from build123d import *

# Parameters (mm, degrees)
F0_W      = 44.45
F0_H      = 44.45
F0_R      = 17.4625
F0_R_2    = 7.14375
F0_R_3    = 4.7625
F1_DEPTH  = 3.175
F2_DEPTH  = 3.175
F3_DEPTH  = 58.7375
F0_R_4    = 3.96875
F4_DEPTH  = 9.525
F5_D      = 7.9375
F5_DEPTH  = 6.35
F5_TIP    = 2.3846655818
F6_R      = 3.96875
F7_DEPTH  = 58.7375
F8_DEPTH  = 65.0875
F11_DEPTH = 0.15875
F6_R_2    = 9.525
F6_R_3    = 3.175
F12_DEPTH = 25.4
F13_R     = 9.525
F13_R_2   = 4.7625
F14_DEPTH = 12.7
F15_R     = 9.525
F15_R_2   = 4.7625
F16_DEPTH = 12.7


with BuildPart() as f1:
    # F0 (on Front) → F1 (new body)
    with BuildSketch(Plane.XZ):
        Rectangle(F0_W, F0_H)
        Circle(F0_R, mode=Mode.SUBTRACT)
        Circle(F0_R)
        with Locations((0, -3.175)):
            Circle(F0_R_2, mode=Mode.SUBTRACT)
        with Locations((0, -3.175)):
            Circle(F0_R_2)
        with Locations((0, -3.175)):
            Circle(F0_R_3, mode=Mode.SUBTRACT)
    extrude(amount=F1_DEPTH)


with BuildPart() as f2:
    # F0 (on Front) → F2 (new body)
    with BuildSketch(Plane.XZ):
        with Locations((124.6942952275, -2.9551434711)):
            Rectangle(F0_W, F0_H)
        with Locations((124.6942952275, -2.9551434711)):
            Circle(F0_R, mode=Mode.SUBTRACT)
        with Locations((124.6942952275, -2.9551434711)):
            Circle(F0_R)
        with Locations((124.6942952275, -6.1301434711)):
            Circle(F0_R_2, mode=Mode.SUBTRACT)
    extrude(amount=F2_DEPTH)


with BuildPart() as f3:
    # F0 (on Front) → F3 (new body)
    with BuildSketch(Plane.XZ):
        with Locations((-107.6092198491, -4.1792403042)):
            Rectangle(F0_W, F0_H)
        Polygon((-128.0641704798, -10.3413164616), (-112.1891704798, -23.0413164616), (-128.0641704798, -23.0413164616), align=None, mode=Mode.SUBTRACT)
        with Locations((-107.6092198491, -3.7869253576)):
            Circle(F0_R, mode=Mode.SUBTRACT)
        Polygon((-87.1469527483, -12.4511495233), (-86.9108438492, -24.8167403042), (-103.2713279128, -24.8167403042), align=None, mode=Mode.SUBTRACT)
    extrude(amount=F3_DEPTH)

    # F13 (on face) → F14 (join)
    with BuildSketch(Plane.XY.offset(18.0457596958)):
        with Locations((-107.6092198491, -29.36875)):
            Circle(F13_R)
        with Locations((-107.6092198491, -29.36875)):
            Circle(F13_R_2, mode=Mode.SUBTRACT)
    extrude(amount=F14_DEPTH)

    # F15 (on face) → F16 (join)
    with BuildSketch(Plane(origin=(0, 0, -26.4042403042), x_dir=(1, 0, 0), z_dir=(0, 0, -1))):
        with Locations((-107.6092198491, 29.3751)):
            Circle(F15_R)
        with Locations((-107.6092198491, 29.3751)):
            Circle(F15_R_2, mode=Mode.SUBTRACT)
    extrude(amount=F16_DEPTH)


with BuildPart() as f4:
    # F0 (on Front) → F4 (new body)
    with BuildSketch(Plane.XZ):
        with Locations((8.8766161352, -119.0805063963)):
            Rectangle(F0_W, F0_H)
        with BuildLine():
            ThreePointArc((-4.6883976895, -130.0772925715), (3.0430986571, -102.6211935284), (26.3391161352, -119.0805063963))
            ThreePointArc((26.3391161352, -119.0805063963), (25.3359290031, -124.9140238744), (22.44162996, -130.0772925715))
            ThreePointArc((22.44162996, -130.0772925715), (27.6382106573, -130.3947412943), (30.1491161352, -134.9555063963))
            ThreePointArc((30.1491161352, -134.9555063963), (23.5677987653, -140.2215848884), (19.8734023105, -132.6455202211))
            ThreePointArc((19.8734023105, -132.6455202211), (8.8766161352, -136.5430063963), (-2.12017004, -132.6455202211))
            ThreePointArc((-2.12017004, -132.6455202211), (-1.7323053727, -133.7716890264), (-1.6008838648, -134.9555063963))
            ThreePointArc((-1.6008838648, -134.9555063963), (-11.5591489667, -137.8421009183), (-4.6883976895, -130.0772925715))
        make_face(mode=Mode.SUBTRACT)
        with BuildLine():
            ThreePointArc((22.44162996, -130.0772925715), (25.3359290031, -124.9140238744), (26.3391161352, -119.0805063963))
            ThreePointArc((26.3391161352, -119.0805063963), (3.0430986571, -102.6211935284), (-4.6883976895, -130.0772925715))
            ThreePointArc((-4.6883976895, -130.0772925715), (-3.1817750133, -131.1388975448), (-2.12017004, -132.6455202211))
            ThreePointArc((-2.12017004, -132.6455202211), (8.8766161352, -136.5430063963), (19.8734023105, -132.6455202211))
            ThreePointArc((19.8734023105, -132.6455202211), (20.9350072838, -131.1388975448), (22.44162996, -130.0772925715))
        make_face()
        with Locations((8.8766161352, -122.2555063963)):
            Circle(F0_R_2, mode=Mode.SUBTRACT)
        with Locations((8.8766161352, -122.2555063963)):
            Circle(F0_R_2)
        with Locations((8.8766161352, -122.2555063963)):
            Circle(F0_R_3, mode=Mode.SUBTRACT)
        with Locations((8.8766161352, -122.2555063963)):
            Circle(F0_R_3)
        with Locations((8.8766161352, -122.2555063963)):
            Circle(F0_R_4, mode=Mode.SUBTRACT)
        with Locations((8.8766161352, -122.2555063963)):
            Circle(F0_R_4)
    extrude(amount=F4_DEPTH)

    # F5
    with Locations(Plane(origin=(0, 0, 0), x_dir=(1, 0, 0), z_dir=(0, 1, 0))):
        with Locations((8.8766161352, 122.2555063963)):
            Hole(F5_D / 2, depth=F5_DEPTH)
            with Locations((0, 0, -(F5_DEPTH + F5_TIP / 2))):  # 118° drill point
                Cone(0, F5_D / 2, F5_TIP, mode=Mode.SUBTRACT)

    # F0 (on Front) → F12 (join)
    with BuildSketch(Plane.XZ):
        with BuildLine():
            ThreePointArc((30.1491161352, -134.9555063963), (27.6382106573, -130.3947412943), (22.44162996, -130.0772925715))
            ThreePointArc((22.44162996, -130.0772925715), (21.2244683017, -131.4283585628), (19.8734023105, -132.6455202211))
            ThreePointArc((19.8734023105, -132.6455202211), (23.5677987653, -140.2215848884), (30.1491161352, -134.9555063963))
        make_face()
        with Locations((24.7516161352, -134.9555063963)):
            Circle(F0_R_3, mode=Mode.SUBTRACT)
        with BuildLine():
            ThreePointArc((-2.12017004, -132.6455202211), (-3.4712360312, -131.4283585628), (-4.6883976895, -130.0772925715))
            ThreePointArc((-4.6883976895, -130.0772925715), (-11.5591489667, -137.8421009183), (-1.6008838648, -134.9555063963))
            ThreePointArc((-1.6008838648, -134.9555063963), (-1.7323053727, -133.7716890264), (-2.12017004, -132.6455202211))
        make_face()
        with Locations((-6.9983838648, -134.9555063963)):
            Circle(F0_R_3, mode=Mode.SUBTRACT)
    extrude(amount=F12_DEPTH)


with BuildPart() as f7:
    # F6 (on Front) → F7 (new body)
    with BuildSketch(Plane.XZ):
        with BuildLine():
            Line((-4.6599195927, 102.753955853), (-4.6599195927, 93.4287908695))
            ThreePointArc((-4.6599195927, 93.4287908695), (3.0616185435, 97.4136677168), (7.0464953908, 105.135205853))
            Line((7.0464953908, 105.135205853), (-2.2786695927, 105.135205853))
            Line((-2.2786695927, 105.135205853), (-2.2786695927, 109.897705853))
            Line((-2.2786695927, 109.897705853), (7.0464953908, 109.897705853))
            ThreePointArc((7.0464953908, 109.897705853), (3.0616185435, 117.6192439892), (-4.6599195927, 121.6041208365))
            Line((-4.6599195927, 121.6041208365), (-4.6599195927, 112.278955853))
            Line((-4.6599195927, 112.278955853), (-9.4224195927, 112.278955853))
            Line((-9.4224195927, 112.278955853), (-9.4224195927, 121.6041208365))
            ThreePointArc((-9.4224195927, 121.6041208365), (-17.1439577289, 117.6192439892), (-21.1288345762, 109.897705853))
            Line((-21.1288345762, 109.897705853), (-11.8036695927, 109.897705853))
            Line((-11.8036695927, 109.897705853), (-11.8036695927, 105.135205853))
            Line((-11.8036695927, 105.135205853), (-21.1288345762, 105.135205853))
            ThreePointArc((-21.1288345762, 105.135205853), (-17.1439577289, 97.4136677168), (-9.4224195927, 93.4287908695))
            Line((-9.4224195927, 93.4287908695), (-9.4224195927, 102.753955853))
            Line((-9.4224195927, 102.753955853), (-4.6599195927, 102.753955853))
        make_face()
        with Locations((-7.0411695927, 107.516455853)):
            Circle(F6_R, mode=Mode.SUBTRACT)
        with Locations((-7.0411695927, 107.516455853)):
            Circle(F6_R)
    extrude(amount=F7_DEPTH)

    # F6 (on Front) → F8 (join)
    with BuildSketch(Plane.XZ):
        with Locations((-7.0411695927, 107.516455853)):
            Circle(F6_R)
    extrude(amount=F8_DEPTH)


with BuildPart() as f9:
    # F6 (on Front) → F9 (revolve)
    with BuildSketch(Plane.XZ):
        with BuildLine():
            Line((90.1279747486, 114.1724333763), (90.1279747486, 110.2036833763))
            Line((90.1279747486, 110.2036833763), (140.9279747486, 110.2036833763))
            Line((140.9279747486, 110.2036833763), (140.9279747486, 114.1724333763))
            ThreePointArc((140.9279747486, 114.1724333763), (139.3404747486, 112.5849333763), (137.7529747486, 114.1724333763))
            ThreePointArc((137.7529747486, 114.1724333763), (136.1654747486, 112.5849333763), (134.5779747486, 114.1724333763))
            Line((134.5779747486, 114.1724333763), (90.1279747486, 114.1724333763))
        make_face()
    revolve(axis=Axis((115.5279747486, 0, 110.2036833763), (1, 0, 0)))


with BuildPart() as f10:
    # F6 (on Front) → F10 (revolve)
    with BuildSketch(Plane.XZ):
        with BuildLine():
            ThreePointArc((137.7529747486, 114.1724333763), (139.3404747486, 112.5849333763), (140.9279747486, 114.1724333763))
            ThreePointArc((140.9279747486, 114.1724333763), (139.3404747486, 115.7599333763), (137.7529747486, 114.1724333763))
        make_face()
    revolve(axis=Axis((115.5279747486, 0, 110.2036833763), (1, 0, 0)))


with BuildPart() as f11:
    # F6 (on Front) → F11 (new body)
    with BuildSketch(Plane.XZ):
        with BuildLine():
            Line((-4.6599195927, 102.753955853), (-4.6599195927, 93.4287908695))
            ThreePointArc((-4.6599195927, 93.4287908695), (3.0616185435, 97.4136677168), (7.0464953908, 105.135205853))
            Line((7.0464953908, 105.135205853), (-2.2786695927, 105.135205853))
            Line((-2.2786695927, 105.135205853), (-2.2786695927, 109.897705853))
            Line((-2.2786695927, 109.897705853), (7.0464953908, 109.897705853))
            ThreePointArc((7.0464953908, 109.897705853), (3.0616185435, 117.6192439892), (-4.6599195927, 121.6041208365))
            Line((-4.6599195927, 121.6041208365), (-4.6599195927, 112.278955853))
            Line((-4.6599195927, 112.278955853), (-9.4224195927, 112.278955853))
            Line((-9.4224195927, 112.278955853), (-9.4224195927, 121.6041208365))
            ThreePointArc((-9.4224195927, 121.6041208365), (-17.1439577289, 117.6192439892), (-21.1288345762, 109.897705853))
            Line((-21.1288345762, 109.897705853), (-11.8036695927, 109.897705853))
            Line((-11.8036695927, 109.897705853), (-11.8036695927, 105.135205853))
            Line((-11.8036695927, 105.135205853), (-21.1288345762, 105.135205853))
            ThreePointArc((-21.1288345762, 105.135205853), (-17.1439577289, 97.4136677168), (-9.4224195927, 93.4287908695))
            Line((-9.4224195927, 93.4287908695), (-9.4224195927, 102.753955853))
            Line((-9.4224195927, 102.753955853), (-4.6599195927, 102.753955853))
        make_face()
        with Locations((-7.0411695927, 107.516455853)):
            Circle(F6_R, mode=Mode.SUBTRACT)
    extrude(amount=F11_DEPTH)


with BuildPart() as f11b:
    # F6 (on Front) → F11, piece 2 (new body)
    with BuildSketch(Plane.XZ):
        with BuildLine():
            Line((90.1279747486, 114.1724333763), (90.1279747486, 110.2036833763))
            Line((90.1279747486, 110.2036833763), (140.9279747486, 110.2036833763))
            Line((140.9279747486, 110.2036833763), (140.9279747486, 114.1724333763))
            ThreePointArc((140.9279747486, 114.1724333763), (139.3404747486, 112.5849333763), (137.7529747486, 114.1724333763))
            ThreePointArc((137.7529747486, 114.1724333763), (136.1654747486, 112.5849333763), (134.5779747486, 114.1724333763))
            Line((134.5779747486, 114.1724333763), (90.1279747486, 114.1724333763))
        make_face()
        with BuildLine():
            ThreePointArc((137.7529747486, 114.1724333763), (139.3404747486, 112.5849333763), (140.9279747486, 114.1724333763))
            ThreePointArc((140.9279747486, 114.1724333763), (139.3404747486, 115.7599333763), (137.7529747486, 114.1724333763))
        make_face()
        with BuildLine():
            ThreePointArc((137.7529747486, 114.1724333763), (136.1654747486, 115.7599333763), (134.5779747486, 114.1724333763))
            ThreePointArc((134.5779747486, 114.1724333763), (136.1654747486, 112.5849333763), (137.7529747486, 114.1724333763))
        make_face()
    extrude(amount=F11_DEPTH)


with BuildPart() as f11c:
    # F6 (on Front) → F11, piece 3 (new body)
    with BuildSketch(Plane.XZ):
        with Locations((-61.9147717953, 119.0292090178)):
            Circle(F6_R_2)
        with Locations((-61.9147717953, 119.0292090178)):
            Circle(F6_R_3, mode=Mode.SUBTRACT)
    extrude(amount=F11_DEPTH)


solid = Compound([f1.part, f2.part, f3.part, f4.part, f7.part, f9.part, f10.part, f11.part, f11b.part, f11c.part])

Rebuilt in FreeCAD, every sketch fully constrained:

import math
import FreeCAD as App
import Part
import Sketcher
Q = App.Units.Quantity


def add_polygon(sketch, points):
    """Adds a closed chain of lines whose ends are joined by coincident constraints."""
    first, n = sketch.GeometryCount, len(points)
    for a, b in zip(points, points[1:] + points[:1]):
        sketch.addGeometry(Part.LineSegment(App.Vector(*a, 0), App.Vector(*b, 0)), False)
    for i in range(n):
        sketch.addConstraint(Sketcher.Constraint("Coincident", first + i, 2, first + (i + 1) % n, 1))

doc = App.newDocument("Part")
body = doc.addObject("PartDesign::Body", "Body")

sketch1 = body.newObject("Sketcher::SketchObject", "Sketch")
sketch1.AttachmentSupport = (doc.getObject("XZ_Plane"), [""])
sketch1.MapMode = "FlatFace"
add_polygon(sketch1, [(-22.2, 22.2), (-22.2, -22.2), (22.2, -22.2), (22.2, 22.2)])
sketch1.addGeometry(Part.Circle(App.Vector(0, -3.2, 0), App.Vector(0, 0, 1), 4.8), False)
sketch1.addConstraint([
    Sketcher.Constraint("Vertical", 0),
    Sketcher.Constraint("Horizontal", 1),
    Sketcher.Constraint("Vertical", 2),
    Sketcher.Constraint("Horizontal", 3),
    Sketcher.Constraint("Symmetric", 0, 2, 2, 2, -1, 1),
    Sketcher.Constraint("PointOnObject", 4, 3, -2),
    Sketcher.Constraint("Equal", 3, 0),
    Sketcher.Constraint("Diameter", 4, Q("0.375 in")),
    Sketcher.Constraint("DistanceY", 4, 3, 2, 2, Q("1 in")),
    Sketcher.Constraint("DistanceX", 1, 1, 1, 2, Q("1.75 in")),
])
pad1 = body.newObject("PartDesign::Pad", "Pad")
pad1.Profile = sketch1
pad1.Length = Q("0.125 in")
body2 = doc.addObject("PartDesign::Body", "Body001")

sketch2 = body2.newObject("Sketcher::SketchObject", "Sketch001")
sketch2.AttachmentSupport = (doc.getObject("XZ_Plane001"), [""])
sketch2.MapMode = "FlatFace"
add_polygon(sketch2, [(102, 19), (102, -25), (147, -25), (147, 19)])
sketch2.addGeometry(Part.Circle(App.Vector(125, -6, 0), App.Vector(0, 0, 1), 7), False)
sketch2.addConstraint([
    Sketcher.Constraint("Vertical", 0),
    Sketcher.Constraint("Horizontal", 1),
    Sketcher.Constraint("Vertical", 2),
    Sketcher.Constraint("Horizontal", 3),
    Sketcher.Constraint("Equal", 3, 0),
    Sketcher.Constraint("Diameter", 4, Q("0.5625 in")),
    Sketcher.Constraint("DistanceY", 4, 3, 2, 2, Q("1 in")),
    Sketcher.Constraint("DistanceX", 1, 1, 1, 2, Q("1.75 in")),
    Sketcher.Constraint("DistanceX", 0, 2, 4, 3, Q("0.875 in")),
    Sketcher.Constraint("DistanceX", -1, 1, 4, 3, Q("124.694295 mm")),
    Sketcher.Constraint("DistanceY", 4, 3, -1, 1, Q("6.130143 mm")),
])
pad2 = body2.newObject("PartDesign::Pad", "Pad001")
pad2.Profile = sketch2
pad2.Length = Q("0.125 in")
body3 = doc.addObject("PartDesign::Body", "Body002")

sketch3 = body3.newObject("Sketcher::SketchObject", "Sketch002")
sketch3.AttachmentSupport = (doc.getObject("XZ_Plane002"), [""])
sketch3.MapMode = "FlatFace"
add_polygon(sketch3, [(-130, 18), (-130, -26), (-85, -26), (-85, 18)])
add_polygon(sketch3, [(-128, -23), (-128, -10), (-112, -23)])
add_polygon(sketch3, [(-103, -25), (-87, -12), (-87, -25)])
sketch3.addGeometry(Part.Circle(App.Vector(-108, -4, 0), App.Vector(0, 0, 1), 17), False)
sketch3.addConstraint([
    Sketcher.Constraint("Vertical", 0),
    Sketcher.Constraint("Horizontal", 1),
    Sketcher.Constraint("Vertical", 2),
    Sketcher.Constraint("Horizontal", 3),
    Sketcher.Constraint("Vertical", 4),
    Sketcher.Constraint("Horizontal", 6),
    Sketcher.Constraint("Horizontal", 9),
    Sketcher.Constraint("Equal", 3, 0),
    Sketcher.Constraint("Diameter", 10, Q("1.375 in")),
    Sketcher.Constraint("DistanceY", 4, 1, 4, 2, Q("0.5 in")),
    Sketcher.Constraint("DistanceX", 1, 1, 1, 2, Q("1.75 in")),
    Sketcher.Constraint("DistanceX", 6, 2, 6, 1, Q("0.625 in")),
    Sketcher.Constraint("DistanceX", 0, 2, 10, 3, Q("0.875 in")),
    Sketcher.Constraint("DistanceY", 1, 2, 8, 2, Q("0.0625 in")),
    Sketcher.Constraint("DistanceX", 9, 2, 9, 1, Q("16.360484 mm")),
    Sketcher.Constraint("DistanceX", 10, 3, -1, 1, Q("107.60922 mm")),
    Sketcher.Constraint("DistanceY", 0, 2, -1, 1, Q("26.40424 mm")),
    Sketcher.Constraint("DistanceX", 4, 2, -1, 1, Q("128.06417 mm")),
    Sketcher.Constraint("DistanceY", 7, 2, -1, 1, Q("12.45115 mm")),
    Sketcher.Constraint("DistanceY", 4, 2, 10, 3, Q("6.554391 mm")),
    Sketcher.Constraint("DistanceX", 7, 2, 8, 2, Q("0.236109 mm")),
    Sketcher.Constraint("DistanceX", 9, 2, 1, 2, Q("17.887108 mm")),
    Sketcher.Constraint("DistanceY", 10, 3, -1, 1, Q("3.786925 mm")),
])
pad3 = body3.newObject("PartDesign::Pad", "Pad002")
pad3.Profile = sketch3
pad3.Length = Q("2.3125 in")

sketch4 = body3.newObject("Sketcher::SketchObject", "Sketch003")
sketch4.AttachmentSupport = (doc.getObject("XY_Plane002"), [""])
sketch4.MapMode = "FlatFace"
sketch4.AttachmentOffset = App.Placement(App.Vector(0, 0, 18.04576), App.Rotation())
sketch4.addGeometry([
    Part.Circle(App.Vector(-107.6, -29.4, 0), App.Vector(0, 0, 1), 9.5),
    Part.Circle(App.Vector(-107.6, -29.4, 0), App.Vector(0, 0, 1), 4.8),
], False)
sketch4.addConstraint([
    Sketcher.Constraint("Coincident", 1, 3, 0, 3),
    Sketcher.Constraint("Diameter", 0, Q("0.75 in")),
    Sketcher.Constraint("Diameter", 1, Q("0.375 in")),
    Sketcher.Constraint("DistanceY", 0, 3, -1, 1, Q("1.15625 in")),
    Sketcher.Constraint("DistanceX", 0, 3, -1, 1, Q("107.60922 mm")),
])
pad4 = body3.newObject("PartDesign::Pad", "Pad003")
pad4.Profile = sketch4
pad4.Length = Q("0.5 in")

sketch5 = body3.newObject("Sketcher::SketchObject", "Sketch004")
sketch5.AttachmentSupport = (doc.getObject("XY_Plane002"), [""])
sketch5.MapMode = "FlatFace"
sketch5.AttachmentOffset = App.Placement(App.Vector(0, 0, -26.40424), App.Rotation())
sketch5.addGeometry([
    Part.Circle(App.Vector(-107.6, -29.4, 0), App.Vector(0, 0, 1), 9.5),
    Part.Circle(App.Vector(-107.6, -29.4, 0), App.Vector(0, 0, 1), 4.8),
], False)
sketch5.addConstraint([
    Sketcher.Constraint("Coincident", 1, 3, 0, 3),
    Sketcher.Constraint("Diameter", 0, Q("0.75 in")),
    Sketcher.Constraint("Diameter", 1, Q("0.375 in")),
    Sketcher.Constraint("DistanceY", 0, 3, -1, 1, Q("1.1565 in")),
    Sketcher.Constraint("DistanceX", 0, 3, -1, 1, Q("107.60922 mm")),
])
pad5 = body3.newObject("PartDesign::Pad", "Pad004")
pad5.Profile = sketch5
pad5.Length = Q("0.5 in")
pad5.Reversed = True
body4 = doc.addObject("PartDesign::Body", "Body003")

sketch6 = body4.newObject("Sketcher::SketchObject", "Sketch005")
sketch6.AttachmentSupport = (doc.getObject("XZ_Plane003"), [""])
sketch6.MapMode = "FlatFace"
add_polygon(sketch6, [(-13.3, -96.9), (-13.3, -141.3), (31.1, -141.3), (31.1, -96.9)])
sketch6.addGeometry(Part.ArcOfCircle(Part.Circle(App.Vector(-7, -135, 0), App.Vector(0, 0, 1), 5.4), math.radians(65), math.radians(360)), False)
sketch6.addGeometry(Part.ArcOfCircle(Part.Circle(App.Vector(-7, -135, 0), App.Vector(0, 0, 1), 5.4), math.radians(25), math.radians(65)), False)
sketch6.addGeometry(Part.ArcOfCircle(Part.Circle(App.Vector(-7, -135, 0), App.Vector(0, 0, 1), 5.4), math.radians(0), math.radians(25)), False)
sketch6.addGeometry(Part.ArcOfCircle(Part.Circle(App.Vector(24.8, -135, 0), App.Vector(0, 0, 1), 5.4), math.radians(155), math.radians(360)), False)
sketch6.addGeometry(Part.ArcOfCircle(Part.Circle(App.Vector(24.8, -135, 0), App.Vector(0, 0, 1), 5.4), math.radians(115), math.radians(155)), False)
sketch6.addGeometry(Part.ArcOfCircle(Part.Circle(App.Vector(24.8, -135, 0), App.Vector(0, 0, 1), 5.4), math.radians(0), math.radians(115)), False)
sketch6.addConstraint([
    Sketcher.Constraint("Tangent", 4, 1, 5, 2),
    Sketcher.Constraint("Tangent", 5, 1, 6, 2),
    Sketcher.Constraint("Tangent", 6, 1, 4, 2),
    Sketcher.Constraint("Tangent", 7, 1, 8, 2),
    Sketcher.Constraint("Tangent", 8, 1, 9, 2),
    Sketcher.Constraint("Tangent", 9, 1, 7, 2),
    Sketcher.Constraint("Vertical", 0),
    Sketcher.Constraint("Horizontal", 1),
    Sketcher.Constraint("Vertical", 2),
    Sketcher.Constraint("Horizontal", 3),
    Sketcher.Constraint("Equal", 6, 7),
    Sketcher.Constraint("Horizontal", 6, 3, 7, 3),
    Sketcher.Constraint("Horizontal", 9, 3, 6, 1),
    Sketcher.Constraint("Horizontal", 5, 1, 7, 1),
    Sketcher.Constraint("Horizontal", 4, 1, 8, 1),
    Sketcher.Constraint("Horizontal", 6, 1, 9, 1),
    Sketcher.Constraint("Equal", 3, 0),
    Sketcher.Constraint("DistanceX", 1, 1, 1, 2, Q("1.75 in")),
    Sketcher.Constraint("Radius", 4, Q("0.2125 in")),
    Sketcher.Constraint("DistanceX", 0, 2, 7, 3, Q("1.5 in")),
    Sketcher.Constraint("DistanceX", 5, 3, 1, 2, Q("1.5 in")),
    Sketcher.Constraint("DistanceY", 7, 3, 2, 2, Q("1.5 in")),
    Sketcher.Constraint("DistanceX", 5, 1, -1, 1, Q("2.12017 mm")),
    Sketcher.Constraint("DistanceY", 5, 1, -1, 1, Q("132.64552 mm")),
    Sketcher.Constraint("DistanceX", -1, 1, 8, 1, Q("22.44163 mm")),
    Sketcher.Constraint("DistanceX", 4, 3, -1, 1, Q("6.998384 mm")),
])
pad6 = body4.newObject("PartDesign::Pad", "Pad005")
pad6.Profile = sketch6
pad6.Length = Q("0.375 in")

sketch7 = body4.newObject("Sketcher::SketchObject", "Sketch006")
sketch7.AttachmentSupport = (doc.getObject("XZ_Plane003"), [""])
sketch7.MapMode = "FlatFace"
sketch7.addGeometry(Part.Circle(App.Vector(8.9, -122.3, 0), App.Vector(0, 0, 1), 4), False)
sketch7.addConstraint([
    Sketcher.Constraint("Diameter", 0, Q("0.3125 in")),
    Sketcher.Constraint("DistanceX", -1, 1, 0, 3, Q("8.876616 mm")),
    Sketcher.Constraint("DistanceY", 0, 3, -1, 1, Q("122.255506 mm")),
])
doc.recompute()
hole = body4.newObject("PartDesign::Hole", "Hole")
hole.Profile = sketch7
hole.ThreadType = "None"
hole.Diameter = Q("0.3125 in")
hole.DepthType = "Dimension"
hole.Depth = Q("0.25 in")
hole.DrillPoint = "Angled"
hole.DrillPointAngle = 118
hole.Reversed = True

sketch8 = body4.newObject("Sketcher::SketchObject", "Sketch007")
sketch8.AttachmentSupport = (doc.getObject("XZ_Plane003"), [""])
sketch8.MapMode = "FlatFace"
sketch8.addGeometry([
    Part.ArcOfCircle(Part.Circle(App.Vector(24.8, -135, 0), App.Vector(0, 0, 1), 5.4), math.radians(0), math.radians(115)),
    Part.ArcOfCircle(Part.Circle(App.Vector(8.9, -119.1, 0), App.Vector(0, 0, 1), 17.5), math.radians(-50.97), math.radians(-39.03)),
    Part.ArcOfCircle(Part.Circle(App.Vector(24.8, -135, 0), App.Vector(0, 0, 1), 5.4), math.radians(155), math.radians(360)),
    Part.Circle(App.Vector(24.8, -135, 0), App.Vector(0, 0, 1), 4.8),
    Part.ArcOfCircle(Part.Circle(App.Vector(8.9, -119.1, 0), App.Vector(0, 0, 1), 17.5), math.radians(-140.97), math.radians(-129.03)),
    Part.ArcOfCircle(Part.Circle(App.Vector(-7, -135, 0), App.Vector(0, 0, 1), 5.4), math.radians(65), math.radians(360)),
    Part.ArcOfCircle(Part.Circle(App.Vector(-7, -135, 0), App.Vector(0, 0, 1), 5.4), math.radians(0), math.radians(25)),
    Part.Circle(App.Vector(-7, -135, 0), App.Vector(0, 0, 1), 4.8),
], False)
sketch8.addConstraint([
    Sketcher.Constraint("Coincident", 0, 2, 1, 2),
    Sketcher.Constraint("Coincident", 1, 1, 2, 1),
    Sketcher.Constraint("Tangent", 2, 2, 0, 1),
    Sketcher.Constraint("Coincident", 4, 1, 5, 1),
    Sketcher.Constraint("Tangent", 5, 2, 6, 1),
    Sketcher.Constraint("Coincident", 6, 2, 4, 2),
    Sketcher.Constraint("Coincident", 3, 3, 0, 3),
    Sketcher.Constraint("Coincident", 4, 3, 1, 3),
    Sketcher.Constraint("Coincident", 7, 3, 5, 3),
    Sketcher.Constraint("Equal", 0, 2),
    Sketcher.Constraint("Equal", 1, 4),
    Sketcher.Constraint("Equal", 2, 5),
    Sketcher.Constraint("Equal", 5, 6),
    Sketcher.Constraint("Equal", 3, 7),
    Sketcher.Constraint("Horizontal", 3, 3, 5, 3),
    Sketcher.Constraint("Horizontal", 7, 3, 2, 2),
    Sketcher.Constraint("Horizontal", 0, 2, 4, 1),
    Sketcher.Constraint("Horizontal", 2, 2, 5, 2),
    Sketcher.Constraint("Diameter", 3, Q("0.375 in")),
    Sketcher.Constraint("Radius", 1, Q("0.6875 in")),
    Sketcher.Constraint("Radius", 0, Q("0.2125 in")),
    Sketcher.Constraint("DistanceX", 5, 3, 0, 3, Q("1.25 in")),
    Sketcher.Constraint("DistanceY", 0, 3, 1, 3, Q("0.625 in")),
    Sketcher.Constraint("DistanceX", -1, 1, 0, 2, Q("22.44163 mm")),
    Sketcher.Constraint("DistanceY", 1, 1, -1, 1, Q("132.64552 mm")),
])
pad7 = body4.newObject("PartDesign::Pad", "Pad006")
pad7.Profile = sketch8
pad7.Length = Q("1 in")
body5 = doc.addObject("PartDesign::Body", "Body004")

sketch9 = body5.newObject("Sketcher::SketchObject", "Sketch008")
sketch9.AttachmentSupport = (doc.getObject("XZ_Plane004"), [""])
sketch9.MapMode = "FlatFace"
sketch9.addGeometry([
    Part.LineSegment(App.Vector(-4.7, 102.8, 0), App.Vector(-4.7, 93.4, 0)),
    Part.ArcOfCircle(Part.Circle(App.Vector(-7, 107.5, 0), App.Vector(0, 0, 1), 14.3), math.radians(-80), math.radians(-10)),
    Part.LineSegment(App.Vector(7, 105.1, 0), App.Vector(-2.3, 105.1, 0)),
    Part.LineSegment(App.Vector(-2.3, 105.1, 0), App.Vector(-2.3, 109.9, 0)),
    Part.LineSegment(App.Vector(-2.3, 109.9, 0), App.Vector(7, 109.9, 0)),
    Part.ArcOfCircle(Part.Circle(App.Vector(-7, 107.5, 0), App.Vector(0, 0, 1), 14.3), math.radians(10), math.radians(80)),
    Part.LineSegment(App.Vector(-4.7, 121.6, 0), App.Vector(-4.7, 112.3, 0)),
    Part.LineSegment(App.Vector(-4.7, 112.3, 0), App.Vector(-9.4, 112.3, 0)),
    Part.LineSegment(App.Vector(-9.4, 112.3, 0), App.Vector(-9.4, 121.6, 0)),
    Part.ArcOfCircle(Part.Circle(App.Vector(-7, 107.5, 0), App.Vector(0, 0, 1), 14.3), math.radians(100), math.radians(170)),
    Part.LineSegment(App.Vector(-21.1, 109.9, 0), App.Vector(-11.8, 109.9, 0)),
    Part.LineSegment(App.Vector(-11.8, 109.9, 0), App.Vector(-11.8, 105.1, 0)),
    Part.LineSegment(App.Vector(-11.8, 105.1, 0), App.Vector(-21.1, 105.1, 0)),
    Part.ArcOfCircle(Part.Circle(App.Vector(-7, 107.5, 0), App.Vector(0, 0, 1), 14.3), math.radians(-170), math.radians(-100)),
    Part.LineSegment(App.Vector(-9.4, 93.4, 0), App.Vector(-9.4, 102.8, 0)),
    Part.LineSegment(App.Vector(-9.4, 102.8, 0), App.Vector(-4.7, 102.8, 0)),
], False)
sketch9.addConstraint([
    Sketcher.Constraint("Coincident", 0, 2, 1, 1),
    Sketcher.Constraint("Coincident", 1, 2, 2, 1),
    Sketcher.Constraint("Coincident", 2, 2, 3, 1),
    Sketcher.Constraint("Coincident", 3, 2, 4, 1),
    Sketcher.Constraint("Coincident", 4, 2, 5, 1),
    Sketcher.Constraint("Coincident", 5, 2, 6, 1),
    Sketcher.Constraint("Coincident", 6, 2, 7, 1),
    Sketcher.Constraint("Coincident", 7, 2, 8, 1),
    Sketcher.Constraint("Coincident", 8, 2, 9, 1),
    Sketcher.Constraint("Coincident", 9, 2, 10, 1),
    Sketcher.Constraint("Coincident", 10, 2, 11, 1),
    Sketcher.Constraint("Coincident", 11, 2, 12, 1),
    Sketcher.Constraint("Coincident", 12, 2, 13, 1),
    Sketcher.Constraint("Coincident", 13, 2, 14, 1),
    Sketcher.Constraint("Coincident", 14, 2, 15, 1),
    Sketcher.Constraint("Coincident", 15, 2, 0, 1),
    Sketcher.Constraint("Vertical", 0),
    Sketcher.Constraint("Horizontal", 2),
    Sketcher.Constraint("Vertical", 3),
    Sketcher.Constraint("Horizontal", 4),
    Sketcher.Constraint("Vertical", 6),
    Sketcher.Constraint("Horizontal", 7),
    Sketcher.Constraint("Vertical", 8),
    Sketcher.Constraint("Horizontal", 10),
    Sketcher.Constraint("Vertical", 11),
    Sketcher.Constraint("Horizontal", 12),
    Sketcher.Constraint("Vertical", 14),
    Sketcher.Constraint("Horizontal", 15),
    Sketcher.Constraint("Coincident", 5, 3, 1, 3),
    Sketcher.Constraint("Coincident", 9, 3, 1, 3),
    Sketcher.Constraint("Coincident", 13, 3, 1, 3),
    Sketcher.Constraint("Equal", 1, 5),
    Sketcher.Constraint("Equal", 5, 9),
    Sketcher.Constraint("Equal", 9, 13),
    Sketcher.Constraint("Horizontal", 5, 2, 8, 2),
    Sketcher.Constraint("Horizontal", 4, 2, 9, 2),
    Sketcher.Constraint("Horizontal", 2, 2, 11, 2),
    Sketcher.Constraint("Horizontal", 0, 2, 13, 2),
    Sketcher.Constraint("Vertical", 1, 2, 4, 2),
    Sketcher.Constraint("Vertical", 0, 2, 5, 2),
    Sketcher.Constraint("Equal", 4, 10),
    Sketcher.Constraint("Equal", 12, 0),
    Sketcher.Constraint("Equal", 15, 3),
    Sketcher.Constraint("Equal", 0, 6),
    Sketcher.Constraint("Radius", 1, Q("0.5625 in")),
    Sketcher.Constraint("DistanceX", 7, 2, 7, 1, Q("0.1875 in")),
    Sketcher.Constraint("DistanceX", 1, 3, 2, 2, Q("0.1875 in")),
    Sketcher.Constraint("DistanceX", 1, 3, -1, 1, Q("7.04117 mm")),
    Sketcher.Constraint("DistanceY", -1, 1, 0, 2, Q("93.428791 mm")),
])
pad8 = body5.newObject("PartDesign::Pad", "Pad007")
pad8.Profile = sketch9
pad8.Length = Q("2.3125 in")

sketch10 = body5.newObject("Sketcher::SketchObject", "Sketch009")
sketch10.AttachmentSupport = (doc.getObject("XZ_Plane004"), [""])
sketch10.MapMode = "FlatFace"
sketch10.addGeometry(Part.Circle(App.Vector(-7, 107.5, 0), App.Vector(0, 0, 1), 4), False)
sketch10.addConstraint([
    Sketcher.Constraint("Diameter", 0, Q("0.3125 in")),
    Sketcher.Constraint("DistanceX", 0, 3, -1, 1, Q("7.04117 mm")),
    Sketcher.Constraint("DistanceY", -1, 1, 0, 3, Q("107.516456 mm")),
])
pad9 = body5.newObject("PartDesign::Pad", "Pad008")
pad9.Profile = sketch10
pad9.Length = Q("2.5625 in")
body6 = doc.addObject("PartDesign::Body", "Body005")

sketch11 = body6.newObject("Sketcher::SketchObject", "Sketch010")
sketch11.AttachmentSupport = (doc.getObject("XZ_Plane005"), [""])
sketch11.MapMode = "FlatFace"
sketch11.addGeometry([
    Part.LineSegment(App.Vector(90.1, 114.2, 0), App.Vector(90.1, 110.2, 0)),
    Part.LineSegment(App.Vector(90.1, 110.2, 0), App.Vector(140.9, 110.2, 0)),
    Part.LineSegment(App.Vector(140.9, 110.2, 0), App.Vector(140.9, 114.2, 0)),
    Part.ArcOfCircle(Part.Circle(App.Vector(139.3, 114.2, 0), App.Vector(0, 0, 1), 1.6), math.radians(180), math.radians(360)),
    Part.ArcOfCircle(Part.Circle(App.Vector(136.2, 114.2, 0), App.Vector(0, 0, 1), 1.6), math.radians(180), math.radians(360)),
    Part.LineSegment(App.Vector(134.6, 114.2, 0), App.Vector(90.1, 114.2, 0)),
], False)
sketch11.addGeometry(Part.LineSegment(App.Vector(90.1, 110.2, 0), App.Vector(140.9, 110.2, 0)), True)
sketch11.addConstraint([
    Sketcher.Constraint("Coincident", 0, 2, 1, 1),
    Sketcher.Constraint("Coincident", 1, 2, 2, 1),
    Sketcher.Constraint("Tangent", 2, 2, 3, 2),
    Sketcher.Constraint("Tangent", 3, 1, 4, 2),
    Sketcher.Constraint("Coincident", 4, 1, 5, 1),
    Sketcher.Constraint("Coincident", 5, 2, 0, 1),
    Sketcher.Constraint("Vertical", 0),
    Sketcher.Constraint("Horizontal", 1),
    Sketcher.Constraint("Vertical", 2),
    Sketcher.Constraint("Horizontal", 5),
    Sketcher.Constraint("Horizontal", 6),
    Sketcher.Constraint("Coincident", 6, 1, 0, 2),
    Sketcher.Constraint("Equal", 3, 4),
    Sketcher.Constraint("Horizontal", 3, 3, 4, 3),
    Sketcher.Constraint("Horizontal", 3, 1, 4, 1),
    Sketcher.Constraint("Vertical", 2, 2, 6, 2),
    Sketcher.Constraint("DistanceX", 1, 1, 1, 2, Q("2 in")),
    Sketcher.Constraint("Radius", 3, Q("0.0625 in")),
    Sketcher.Constraint("DistanceY", 0, 2, 0, 1, Q("0.15625 in")),
    Sketcher.Constraint("DistanceX", -1, 1, 3, 3, Q("139.340475 mm")),
    Sketcher.Constraint("DistanceY", -1, 1, 3, 3, Q("114.172433 mm")),
])
revolution = body6.newObject("PartDesign::Revolution", "Revolution")
revolution.Profile = sketch11
revolution.ReferenceAxis = (sketch11, ["Axis0"])
revolution.Angle = 360
body7 = doc.addObject("PartDesign::Body", "Body006")

sketch12 = body7.newObject("Sketcher::SketchObject", "Sketch011")
sketch12.AttachmentSupport = (doc.getObject("XZ_Plane006"), [""])
sketch12.MapMode = "FlatFace"
sketch12.addGeometry(Part.Circle(App.Vector(139.3, 114.2, 0), App.Vector(0, 0, 1), 1.6), False)
sketch12.addGeometry(Part.LineSegment(App.Vector(139.3, 110.2, 0), App.Vector(149.3, 110.2, 0)), True)
sketch12.addConstraint([
    Sketcher.Constraint("Horizontal", 1),
    Sketcher.Constraint("Vertical", 0, 3, 1, 1),
    Sketcher.Constraint("Diameter", 0, Q("0.125 in")),
    Sketcher.Constraint("DistanceY", 1, 1, 0, 3, Q("0.15625 in")),
    Sketcher.Constraint("DistanceX", 1, 1, 1, 2, Q("10 mm")),
    Sketcher.Constraint("DistanceX", -1, 1, 0, 3, Q("139.340475 mm")),
    Sketcher.Constraint("DistanceY", -1, 1, 0, 3, Q("114.172433 mm")),
])
revolution2 = body7.newObject("PartDesign::Revolution", "Revolution001")
revolution2.Profile = sketch12
revolution2.ReferenceAxis = (sketch12, ["Axis0"])
revolution2.Angle = 360
body8 = doc.addObject("PartDesign::Body", "Body007")

sketch13 = body8.newObject("Sketcher::SketchObject", "Sketch012")
sketch13.AttachmentSupport = (doc.getObject("XZ_Plane007"), [""])
sketch13.MapMode = "FlatFace"
sketch13.addGeometry([
    Part.LineSegment(App.Vector(-4.7, 102.8, 0), App.Vector(-4.7, 93.4, 0)),
    Part.ArcOfCircle(Part.Circle(App.Vector(-7, 107.5, 0), App.Vector(0, 0, 1), 14.3), math.radians(-80), math.radians(-10)),
    Part.LineSegment(App.Vector(7, 105.1, 0), App.Vector(-2.3, 105.1, 0)),
    Part.LineSegment(App.Vector(-2.3, 105.1, 0), App.Vector(-2.3, 109.9, 0)),
    Part.LineSegment(App.Vector(-2.3, 109.9, 0), App.Vector(7, 109.9, 0)),
    Part.ArcOfCircle(Part.Circle(App.Vector(-7, 107.5, 0), App.Vector(0, 0, 1), 14.3), math.radians(10), math.radians(80)),
    Part.LineSegment(App.Vector(-4.7, 121.6, 0), App.Vector(-4.7, 112.3, 0)),
    Part.LineSegment(App.Vector(-4.7, 112.3, 0), App.Vector(-9.4, 112.3, 0)),
    Part.LineSegment(App.Vector(-9.4, 112.3, 0), App.Vector(-9.4, 121.6, 0)),
    Part.ArcOfCircle(Part.Circle(App.Vector(-7, 107.5, 0), App.Vector(0, 0, 1), 14.3), math.radians(100), math.radians(170)),
    Part.LineSegment(App.Vector(-21.1, 109.9, 0), App.Vector(-11.8, 109.9, 0)),
    Part.LineSegment(App.Vector(-11.8, 109.9, 0), App.Vector(-11.8, 105.1, 0)),
    Part.LineSegment(App.Vector(-11.8, 105.1, 0), App.Vector(-21.1, 105.1, 0)),
    Part.ArcOfCircle(Part.Circle(App.Vector(-7, 107.5, 0), App.Vector(0, 0, 1), 14.3), math.radians(-170), math.radians(-100)),
    Part.LineSegment(App.Vector(-9.4, 93.4, 0), App.Vector(-9.4, 102.8, 0)),
    Part.LineSegment(App.Vector(-9.4, 102.8, 0), App.Vector(-4.7, 102.8, 0)),
    Part.Circle(App.Vector(-7, 107.5, 0), App.Vector(0, 0, 1), 4),
], False)
sketch13.addConstraint([
    Sketcher.Constraint("Coincident", 0, 2, 1, 1),
    Sketcher.Constraint("Coincident", 1, 2, 2, 1),
    Sketcher.Constraint("Coincident", 2, 2, 3, 1),
    Sketcher.Constraint("Coincident", 3, 2, 4, 1),
    Sketcher.Constraint("Coincident", 4, 2, 5, 1),
    Sketcher.Constraint("Coincident", 5, 2, 6, 1),
    Sketcher.Constraint("Coincident", 6, 2, 7, 1),
    Sketcher.Constraint("Coincident", 7, 2, 8, 1),
    Sketcher.Constraint("Coincident", 8, 2, 9, 1),
    Sketcher.Constraint("Coincident", 9, 2, 10, 1),
    Sketcher.Constraint("Coincident", 10, 2, 11, 1),
    Sketcher.Constraint("Coincident", 11, 2, 12, 1),
    Sketcher.Constraint("Coincident", 12, 2, 13, 1),
    Sketcher.Constraint("Coincident", 13, 2, 14, 1),
    Sketcher.Constraint("Coincident", 14, 2, 15, 1),
    Sketcher.Constraint("Coincident", 15, 2, 0, 1),
    Sketcher.Constraint("Vertical", 0),
    Sketcher.Constraint("Horizontal", 2),
    Sketcher.Constraint("Vertical", 3),
    Sketcher.Constraint("Horizontal", 4),
    Sketcher.Constraint("Vertical", 6),
    Sketcher.Constraint("Horizontal", 7),
    Sketcher.Constraint("Vertical", 8),
    Sketcher.Constraint("Horizontal", 10),
    Sketcher.Constraint("Vertical", 11),
    Sketcher.Constraint("Horizontal", 12),
    Sketcher.Constraint("Vertical", 14),
    Sketcher.Constraint("Horizontal", 15),
    Sketcher.Constraint("Coincident", 5, 3, 1, 3),
    Sketcher.Constraint("Coincident", 9, 3, 1, 3),
    Sketcher.Constraint("Coincident", 13, 3, 1, 3),
    Sketcher.Constraint("Coincident", 16, 3, 1, 3),
    Sketcher.Constraint("Equal", 1, 5),
    Sketcher.Constraint("Equal", 5, 9),
    Sketcher.Constraint("Equal", 9, 13),
    Sketcher.Constraint("Horizontal", 5, 2, 8, 2),
    Sketcher.Constraint("Horizontal", 4, 2, 9, 2),
    Sketcher.Constraint("Horizontal", 2, 2, 11, 2),
    Sketcher.Constraint("Horizontal", 0, 2, 13, 2),
    Sketcher.Constraint("Vertical", 1, 2, 4, 2),
    Sketcher.Constraint("Vertical", 0, 2, 5, 2),
    Sketcher.Constraint("Equal", 4, 10),
    Sketcher.Constraint("Equal", 12, 0),
    Sketcher.Constraint("Equal", 15, 3),
    Sketcher.Constraint("Equal", 0, 6),
    Sketcher.Constraint("Diameter", 16, Q("0.3125 in")),
    Sketcher.Constraint("Radius", 1, Q("0.5625 in")),
    Sketcher.Constraint("DistanceX", 7, 2, 7, 1, Q("0.1875 in")),
    Sketcher.Constraint("DistanceX", 1, 3, 2, 2, Q("0.1875 in")),
    Sketcher.Constraint("DistanceX", 1, 3, -1, 1, Q("7.04117 mm")),
    Sketcher.Constraint("DistanceY", -1, 1, 0, 2, Q("93.428791 mm")),
])
pad10 = body8.newObject("PartDesign::Pad", "Pad009")
pad10.Profile = sketch13
pad10.Length = 0.15875
body9 = doc.addObject("PartDesign::Body", "Body008")

sketch14 = body9.newObject("Sketcher::SketchObject", "Sketch013")
sketch14.AttachmentSupport = (doc.getObject("XZ_Plane008"), [""])
sketch14.MapMode = "FlatFace"
sketch14.addGeometry([
    Part.LineSegment(App.Vector(90.1, 114.2, 0), App.Vector(90.1, 110.2, 0)),
    Part.LineSegment(App.Vector(90.1, 110.2, 0), App.Vector(140.9, 110.2, 0)),
    Part.LineSegment(App.Vector(140.9, 110.2, 0), App.Vector(140.9, 114.2, 0)),
    Part.ArcOfCircle(Part.Circle(App.Vector(139.3, 114.2, 0), App.Vector(0, 0, 1), 1.6), math.radians(0), math.radians(180)),
    Part.ArcOfCircle(Part.Circle(App.Vector(136.2, 114.2, 0), App.Vector(0, 0, 1), 1.6), math.radians(0), math.radians(180)),
    Part.LineSegment(App.Vector(134.6, 114.2, 0), App.Vector(90.1, 114.2, 0)),
], False)
sketch14.addConstraint([
    Sketcher.Constraint("Coincident", 0, 2, 1, 1),
    Sketcher.Constraint("Coincident", 1, 2, 2, 1),
    Sketcher.Constraint("Tangent", 2, 2, 3, 1),
    Sketcher.Constraint("Tangent", 3, 2, 4, 1),
    Sketcher.Constraint("Coincident", 4, 2, 5, 1),
    Sketcher.Constraint("Coincident", 5, 2, 0, 1),
    Sketcher.Constraint("Vertical", 0),
    Sketcher.Constraint("Horizontal", 1),
    Sketcher.Constraint("Vertical", 2),
    Sketcher.Constraint("Horizontal", 5),
    Sketcher.Constraint("Equal", 3, 4),
    Sketcher.Constraint("Horizontal", 3, 3, 4, 3),
    Sketcher.Constraint("Horizontal", 3, 2, 4, 2),
    Sketcher.Constraint("DistanceX", 1, 1, 1, 2, Q("2 in")),
    Sketcher.Constraint("Radius", 3, Q("0.0625 in")),
    Sketcher.Constraint("DistanceY", 0, 2, 0, 1, Q("0.15625 in")),
    Sketcher.Constraint("DistanceX", -1, 1, 3, 3, Q("139.340475 mm")),
    Sketcher.Constraint("DistanceY", -1, 1, 3, 3, Q("114.172433 mm")),
])
pad11 = body9.newObject("PartDesign::Pad", "Pad010")
pad11.Profile = sketch14
pad11.Length = 0.15875
body10 = doc.addObject("PartDesign::Body", "Body009")

sketch15 = body10.newObject("Sketcher::SketchObject", "Sketch014")
sketch15.AttachmentSupport = (doc.getObject("XZ_Plane009"), [""])
sketch15.MapMode = "FlatFace"
sketch15.addGeometry([
    Part.Circle(App.Vector(-61.9, 119, 0), App.Vector(0, 0, 1), 9.5),
    Part.Circle(App.Vector(-61.9, 119, 0), App.Vector(0, 0, 1), 3.2),
], False)
sketch15.addConstraint([
    Sketcher.Constraint("Coincident", 1, 3, 0, 3),
    Sketcher.Constraint("Diameter", 0, Q("0.75 in")),
    Sketcher.Constraint("Diameter", 1, Q("0.25 in")),
    Sketcher.Constraint("DistanceX", 0, 3, -1, 1, Q("61.914772 mm")),
    Sketcher.Constraint("DistanceY", -1, 1, 0, 3, Q("119.029209 mm")),
])
pad12 = body10.newObject("PartDesign::Pad", "Pad011")
pad12.Profile = sketch15
pad12.Length = 0.15875

doc.recompute()
